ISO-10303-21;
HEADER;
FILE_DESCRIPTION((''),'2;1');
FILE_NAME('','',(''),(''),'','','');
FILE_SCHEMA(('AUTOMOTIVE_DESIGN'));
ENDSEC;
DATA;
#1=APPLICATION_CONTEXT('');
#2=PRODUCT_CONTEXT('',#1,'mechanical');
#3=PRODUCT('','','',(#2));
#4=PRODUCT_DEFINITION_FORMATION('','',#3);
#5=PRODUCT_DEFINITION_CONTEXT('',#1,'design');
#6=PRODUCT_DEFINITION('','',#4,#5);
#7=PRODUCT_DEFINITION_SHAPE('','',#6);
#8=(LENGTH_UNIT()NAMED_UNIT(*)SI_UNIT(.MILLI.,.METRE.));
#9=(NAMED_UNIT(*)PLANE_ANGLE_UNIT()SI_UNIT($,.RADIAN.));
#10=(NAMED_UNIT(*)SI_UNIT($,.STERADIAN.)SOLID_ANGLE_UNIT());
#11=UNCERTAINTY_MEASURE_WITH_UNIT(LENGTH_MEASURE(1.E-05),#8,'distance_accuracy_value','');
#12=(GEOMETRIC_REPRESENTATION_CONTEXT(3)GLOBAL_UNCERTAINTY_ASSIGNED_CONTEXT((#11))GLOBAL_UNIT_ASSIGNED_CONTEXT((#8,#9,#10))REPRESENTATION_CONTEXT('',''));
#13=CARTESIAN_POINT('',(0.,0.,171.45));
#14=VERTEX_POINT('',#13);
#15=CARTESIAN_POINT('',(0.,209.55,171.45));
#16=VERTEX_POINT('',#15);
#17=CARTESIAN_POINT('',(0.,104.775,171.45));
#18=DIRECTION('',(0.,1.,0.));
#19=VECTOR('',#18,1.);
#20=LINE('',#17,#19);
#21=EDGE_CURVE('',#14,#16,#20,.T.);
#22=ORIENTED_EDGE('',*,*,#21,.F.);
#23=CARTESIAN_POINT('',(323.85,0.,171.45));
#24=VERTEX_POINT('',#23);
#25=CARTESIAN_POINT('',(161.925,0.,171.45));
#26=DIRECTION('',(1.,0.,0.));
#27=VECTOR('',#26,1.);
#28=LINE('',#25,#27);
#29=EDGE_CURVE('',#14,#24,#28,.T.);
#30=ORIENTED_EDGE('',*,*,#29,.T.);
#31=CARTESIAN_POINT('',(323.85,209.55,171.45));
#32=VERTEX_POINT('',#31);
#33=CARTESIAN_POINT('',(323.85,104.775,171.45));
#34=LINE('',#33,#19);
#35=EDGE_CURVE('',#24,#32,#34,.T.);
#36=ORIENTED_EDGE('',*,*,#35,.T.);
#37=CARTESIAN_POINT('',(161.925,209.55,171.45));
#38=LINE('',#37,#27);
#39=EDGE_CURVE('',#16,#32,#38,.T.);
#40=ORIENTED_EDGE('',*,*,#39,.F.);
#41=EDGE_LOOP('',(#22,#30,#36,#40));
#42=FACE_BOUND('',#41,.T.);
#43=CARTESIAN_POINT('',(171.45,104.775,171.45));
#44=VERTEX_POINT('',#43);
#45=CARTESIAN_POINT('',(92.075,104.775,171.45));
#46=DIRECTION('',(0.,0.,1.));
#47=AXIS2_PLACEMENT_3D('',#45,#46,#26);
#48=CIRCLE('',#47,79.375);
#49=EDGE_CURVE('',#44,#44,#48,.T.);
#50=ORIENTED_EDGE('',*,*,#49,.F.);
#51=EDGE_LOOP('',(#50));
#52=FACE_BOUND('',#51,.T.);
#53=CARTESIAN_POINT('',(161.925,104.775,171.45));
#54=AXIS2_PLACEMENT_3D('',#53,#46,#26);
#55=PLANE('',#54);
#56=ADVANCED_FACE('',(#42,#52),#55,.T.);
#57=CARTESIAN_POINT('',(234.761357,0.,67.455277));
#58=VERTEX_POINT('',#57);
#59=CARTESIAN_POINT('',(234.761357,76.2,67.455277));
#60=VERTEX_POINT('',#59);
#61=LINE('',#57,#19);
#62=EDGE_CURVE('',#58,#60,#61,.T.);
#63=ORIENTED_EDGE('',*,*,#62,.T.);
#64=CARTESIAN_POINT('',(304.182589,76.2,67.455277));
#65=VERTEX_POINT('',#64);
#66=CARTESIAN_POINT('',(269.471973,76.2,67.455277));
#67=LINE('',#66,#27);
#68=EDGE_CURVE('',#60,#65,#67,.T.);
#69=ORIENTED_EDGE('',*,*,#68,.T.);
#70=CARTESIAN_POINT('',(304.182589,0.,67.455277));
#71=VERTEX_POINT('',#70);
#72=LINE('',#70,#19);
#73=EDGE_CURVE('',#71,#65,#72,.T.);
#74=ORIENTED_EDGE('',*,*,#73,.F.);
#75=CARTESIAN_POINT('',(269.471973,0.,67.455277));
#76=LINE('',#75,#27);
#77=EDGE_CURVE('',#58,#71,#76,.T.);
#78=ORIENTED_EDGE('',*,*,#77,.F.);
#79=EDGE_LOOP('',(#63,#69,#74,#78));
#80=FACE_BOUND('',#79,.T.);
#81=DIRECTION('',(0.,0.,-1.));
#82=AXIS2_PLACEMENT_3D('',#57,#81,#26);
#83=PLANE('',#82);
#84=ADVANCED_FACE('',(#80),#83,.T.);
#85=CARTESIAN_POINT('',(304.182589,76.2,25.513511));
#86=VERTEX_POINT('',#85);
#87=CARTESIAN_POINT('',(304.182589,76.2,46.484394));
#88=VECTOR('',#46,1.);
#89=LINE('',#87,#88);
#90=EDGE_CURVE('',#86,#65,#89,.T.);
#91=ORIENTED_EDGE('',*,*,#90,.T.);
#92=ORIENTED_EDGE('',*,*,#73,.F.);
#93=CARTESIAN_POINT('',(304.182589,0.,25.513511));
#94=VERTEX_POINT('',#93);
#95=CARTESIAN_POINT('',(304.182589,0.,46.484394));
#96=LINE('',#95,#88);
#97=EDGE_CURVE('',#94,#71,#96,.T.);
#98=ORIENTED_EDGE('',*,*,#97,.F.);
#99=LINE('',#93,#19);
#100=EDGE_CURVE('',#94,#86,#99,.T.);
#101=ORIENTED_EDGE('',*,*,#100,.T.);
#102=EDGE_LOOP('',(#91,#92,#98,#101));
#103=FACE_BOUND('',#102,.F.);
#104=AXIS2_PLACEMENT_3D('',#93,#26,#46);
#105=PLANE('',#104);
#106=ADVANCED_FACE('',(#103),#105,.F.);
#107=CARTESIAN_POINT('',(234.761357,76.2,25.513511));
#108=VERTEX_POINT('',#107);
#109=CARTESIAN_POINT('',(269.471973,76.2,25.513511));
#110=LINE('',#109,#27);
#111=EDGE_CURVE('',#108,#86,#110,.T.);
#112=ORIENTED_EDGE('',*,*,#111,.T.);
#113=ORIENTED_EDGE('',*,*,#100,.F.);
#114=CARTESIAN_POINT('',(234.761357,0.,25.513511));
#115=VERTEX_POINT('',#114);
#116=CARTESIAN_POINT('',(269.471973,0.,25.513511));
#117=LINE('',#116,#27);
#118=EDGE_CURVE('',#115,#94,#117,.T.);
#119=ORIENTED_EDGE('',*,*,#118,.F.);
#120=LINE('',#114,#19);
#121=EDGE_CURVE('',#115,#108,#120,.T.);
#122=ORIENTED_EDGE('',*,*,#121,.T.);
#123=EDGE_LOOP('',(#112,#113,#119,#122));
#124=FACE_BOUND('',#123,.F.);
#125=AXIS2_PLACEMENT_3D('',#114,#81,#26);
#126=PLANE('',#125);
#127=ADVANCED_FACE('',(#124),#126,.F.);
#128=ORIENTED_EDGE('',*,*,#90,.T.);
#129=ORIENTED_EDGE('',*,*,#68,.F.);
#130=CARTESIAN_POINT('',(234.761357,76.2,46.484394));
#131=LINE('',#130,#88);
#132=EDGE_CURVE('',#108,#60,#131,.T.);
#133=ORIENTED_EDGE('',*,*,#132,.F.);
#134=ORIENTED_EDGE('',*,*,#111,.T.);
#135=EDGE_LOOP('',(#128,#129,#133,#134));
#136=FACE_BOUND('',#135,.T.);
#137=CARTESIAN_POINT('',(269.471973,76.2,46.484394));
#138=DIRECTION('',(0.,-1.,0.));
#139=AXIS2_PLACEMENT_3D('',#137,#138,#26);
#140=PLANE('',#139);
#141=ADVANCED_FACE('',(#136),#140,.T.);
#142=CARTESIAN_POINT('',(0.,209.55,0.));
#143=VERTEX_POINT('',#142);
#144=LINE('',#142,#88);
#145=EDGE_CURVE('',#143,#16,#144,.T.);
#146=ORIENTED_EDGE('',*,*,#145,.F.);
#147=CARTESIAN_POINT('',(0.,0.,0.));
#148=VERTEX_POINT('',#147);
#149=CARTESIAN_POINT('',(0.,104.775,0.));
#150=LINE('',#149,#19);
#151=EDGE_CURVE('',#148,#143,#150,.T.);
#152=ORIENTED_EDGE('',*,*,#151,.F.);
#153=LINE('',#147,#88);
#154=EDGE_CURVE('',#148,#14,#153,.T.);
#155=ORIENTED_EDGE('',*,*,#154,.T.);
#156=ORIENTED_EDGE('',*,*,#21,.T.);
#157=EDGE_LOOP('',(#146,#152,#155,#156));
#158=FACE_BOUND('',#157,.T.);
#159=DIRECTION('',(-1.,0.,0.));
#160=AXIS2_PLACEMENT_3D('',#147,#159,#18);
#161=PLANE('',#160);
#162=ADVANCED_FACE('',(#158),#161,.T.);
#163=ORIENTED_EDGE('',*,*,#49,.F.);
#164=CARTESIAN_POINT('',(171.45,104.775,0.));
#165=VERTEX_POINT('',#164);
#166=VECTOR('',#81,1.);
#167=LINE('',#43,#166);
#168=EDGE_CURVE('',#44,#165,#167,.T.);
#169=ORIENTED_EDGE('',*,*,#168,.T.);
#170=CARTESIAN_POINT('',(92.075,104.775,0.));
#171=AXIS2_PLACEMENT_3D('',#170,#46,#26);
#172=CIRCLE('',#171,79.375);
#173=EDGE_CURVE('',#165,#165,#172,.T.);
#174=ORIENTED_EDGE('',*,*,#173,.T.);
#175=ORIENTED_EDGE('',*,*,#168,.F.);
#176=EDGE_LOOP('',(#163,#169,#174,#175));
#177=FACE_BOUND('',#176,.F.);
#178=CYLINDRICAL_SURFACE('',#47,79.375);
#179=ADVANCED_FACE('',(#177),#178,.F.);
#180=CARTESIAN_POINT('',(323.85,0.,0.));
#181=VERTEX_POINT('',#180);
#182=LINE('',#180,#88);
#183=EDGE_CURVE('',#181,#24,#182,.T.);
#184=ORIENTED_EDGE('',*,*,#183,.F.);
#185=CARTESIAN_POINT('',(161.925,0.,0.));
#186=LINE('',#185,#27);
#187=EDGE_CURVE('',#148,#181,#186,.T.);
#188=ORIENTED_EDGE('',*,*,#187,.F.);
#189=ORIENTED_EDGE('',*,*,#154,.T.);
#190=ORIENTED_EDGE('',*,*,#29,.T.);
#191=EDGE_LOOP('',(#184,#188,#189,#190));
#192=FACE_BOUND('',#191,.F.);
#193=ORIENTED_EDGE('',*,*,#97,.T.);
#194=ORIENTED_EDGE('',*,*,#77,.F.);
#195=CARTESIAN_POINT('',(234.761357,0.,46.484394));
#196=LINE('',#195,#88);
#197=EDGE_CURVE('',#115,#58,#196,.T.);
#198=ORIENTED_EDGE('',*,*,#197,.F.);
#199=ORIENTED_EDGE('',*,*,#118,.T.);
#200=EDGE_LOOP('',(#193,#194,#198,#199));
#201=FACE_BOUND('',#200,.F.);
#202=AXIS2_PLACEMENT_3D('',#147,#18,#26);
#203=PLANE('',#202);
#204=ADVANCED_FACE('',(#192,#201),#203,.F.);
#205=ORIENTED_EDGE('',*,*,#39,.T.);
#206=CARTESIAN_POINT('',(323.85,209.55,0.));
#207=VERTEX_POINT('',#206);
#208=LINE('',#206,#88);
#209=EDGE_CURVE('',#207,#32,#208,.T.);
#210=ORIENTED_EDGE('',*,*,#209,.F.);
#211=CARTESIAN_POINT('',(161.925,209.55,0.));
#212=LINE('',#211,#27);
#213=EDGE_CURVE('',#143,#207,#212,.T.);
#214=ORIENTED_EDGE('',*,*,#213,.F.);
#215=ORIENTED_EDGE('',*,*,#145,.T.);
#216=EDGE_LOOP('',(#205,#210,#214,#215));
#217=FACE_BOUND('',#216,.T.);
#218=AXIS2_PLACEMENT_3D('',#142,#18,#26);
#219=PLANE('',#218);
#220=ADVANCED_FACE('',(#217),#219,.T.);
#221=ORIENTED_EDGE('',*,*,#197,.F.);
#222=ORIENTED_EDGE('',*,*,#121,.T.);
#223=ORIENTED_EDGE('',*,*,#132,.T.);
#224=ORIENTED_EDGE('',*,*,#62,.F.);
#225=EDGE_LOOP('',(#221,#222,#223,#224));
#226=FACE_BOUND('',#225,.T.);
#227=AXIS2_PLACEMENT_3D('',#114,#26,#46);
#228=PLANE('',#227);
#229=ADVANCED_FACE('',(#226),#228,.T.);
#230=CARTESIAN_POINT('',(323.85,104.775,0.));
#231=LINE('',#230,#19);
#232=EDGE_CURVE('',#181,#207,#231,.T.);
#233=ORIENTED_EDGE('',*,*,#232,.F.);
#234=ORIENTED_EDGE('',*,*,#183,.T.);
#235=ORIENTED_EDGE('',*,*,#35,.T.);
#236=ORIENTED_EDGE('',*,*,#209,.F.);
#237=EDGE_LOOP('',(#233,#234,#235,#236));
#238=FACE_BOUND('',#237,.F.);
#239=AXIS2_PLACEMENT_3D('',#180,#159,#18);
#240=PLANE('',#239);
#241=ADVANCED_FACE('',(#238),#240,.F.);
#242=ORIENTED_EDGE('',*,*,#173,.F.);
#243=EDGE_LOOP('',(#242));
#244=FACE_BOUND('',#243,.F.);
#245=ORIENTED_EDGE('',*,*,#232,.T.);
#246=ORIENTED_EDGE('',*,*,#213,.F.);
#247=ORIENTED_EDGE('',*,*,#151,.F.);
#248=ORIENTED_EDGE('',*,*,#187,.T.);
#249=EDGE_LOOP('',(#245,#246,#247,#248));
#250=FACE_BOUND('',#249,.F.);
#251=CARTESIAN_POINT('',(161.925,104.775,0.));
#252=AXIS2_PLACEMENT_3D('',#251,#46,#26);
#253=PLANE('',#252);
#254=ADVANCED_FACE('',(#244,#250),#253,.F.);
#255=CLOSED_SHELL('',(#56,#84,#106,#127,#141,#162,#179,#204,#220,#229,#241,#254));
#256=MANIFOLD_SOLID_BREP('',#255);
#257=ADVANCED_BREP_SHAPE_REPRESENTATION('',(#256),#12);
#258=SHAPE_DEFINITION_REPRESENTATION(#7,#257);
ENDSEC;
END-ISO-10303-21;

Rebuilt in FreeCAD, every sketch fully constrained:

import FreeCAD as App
import Part
import Sketcher
Q = App.Units.Quantity


def add_polygon(sketch, points):
    """Adds a closed chain of lines whose ends are joined by coincident constraints."""
    first, n = sketch.GeometryCount, len(points)
    for a, b in zip(points, points[1:] + points[:1]):
        sketch.addGeometry(Part.LineSegment(App.Vector(*a, 0), App.Vector(*b, 0)), False)
    for i in range(n):
        sketch.addConstraint(Sketcher.Constraint("Coincident", first + i, 2, first + (i + 1) % n, 1))

doc = App.newDocument("Part")
body = doc.addObject("PartDesign::Body", "Body")

sketch1 = body.newObject("Sketcher::SketchObject", "Sketch")
sketch1.AttachmentSupport = (doc.getObject("XY_Plane"), [""])
sketch1.MapMode = "FlatFace"
add_polygon(sketch1, [(0, 209.55), (0, 0), (323.85, 0), (323.85, 209.55)])
sketch1.addConstraint([
    Sketcher.Constraint("Vertical", 0),
    Sketcher.Constraint("Horizontal", 1),
    Sketcher.Constraint("Vertical", 2),
    Sketcher.Constraint("Horizontal", 3),
    Sketcher.Constraint("Coincident", 0, 2, -1, 1),
    Sketcher.Constraint("DistanceX", 1, 1, 1, 2, Q("12.75 in")),
    Sketcher.Constraint("DistanceY", 0, 2, 0, 1, Q("8.25 in")),
])
pad1 = body.newObject("PartDesign::Pad", "Pad")
pad1.Profile = sketch1
pad1.Length = Q("6.75 in")

sketch2 = body.newObject("Sketcher::SketchObject", "Sketch001")
sketch2.AttachmentSupport = (doc.getObject("XY_Plane"), [""])
sketch2.MapMode = "FlatFace"
sketch2.AttachmentOffset = App.Placement(App.Vector(0, 0, 6.75 * 25.4), App.Rotation())
sketch2.addGeometry(Part.Circle(App.Vector(92.075, 104.775, 0), App.Vector(0, 0, 1), 79.375), False)
sketch2.addConstraint([
    Sketcher.Constraint("Diameter", 0, Q("6.25 in")),
    Sketcher.Constraint("DistanceX", -1, 1, 0, 3, Q("3.625 in")),
    Sketcher.Constraint("DistanceY", -1, 1, 0, 3, Q("4.125 in")),
])
pocket1 = body.newObject("PartDesign::Pocket", "Pocket")
pocket1.Profile = sketch2
pocket1.Type = "ThroughAll"

sketch3 = body.newObject("Sketcher::SketchObject", "Sketch002")
sketch3.AttachmentSupport = (doc.getObject("XZ_Plane"), [""])
sketch3.MapMode = "FlatFace"
add_polygon(sketch3, [(234.761357, 67.455277), (234.761357, 25.513511), (304.182589, 25.513511), (304.182589, 67.455277)])
sketch3.addConstraint([
    Sketcher.Constraint("Vertical", 0),
    Sketcher.Constraint("Horizontal", 1),
    Sketcher.Constraint("Vertical", 2),
    Sketcher.Constraint("Horizontal", 3),
    Sketcher.Constraint("DistanceX", 1, 1, 1, 2, Q("69.421232 mm")),
    Sketcher.Constraint("DistanceY", 0, 2, 0, 1, Q("41.941766 mm")),
    Sketcher.Constraint("DistanceY", -1, 1, 0, 2, Q("25.513511 mm")),
    Sketcher.Constraint("DistanceX", -1, 1, 1, 2, Q("304.182589 mm")),
])
pocket2 = body.newObject("PartDesign::Pocket", "Pocket001")
pocket2.Profile = sketch3
pocket2.Length = Q("3 in")

doc.recompute()
